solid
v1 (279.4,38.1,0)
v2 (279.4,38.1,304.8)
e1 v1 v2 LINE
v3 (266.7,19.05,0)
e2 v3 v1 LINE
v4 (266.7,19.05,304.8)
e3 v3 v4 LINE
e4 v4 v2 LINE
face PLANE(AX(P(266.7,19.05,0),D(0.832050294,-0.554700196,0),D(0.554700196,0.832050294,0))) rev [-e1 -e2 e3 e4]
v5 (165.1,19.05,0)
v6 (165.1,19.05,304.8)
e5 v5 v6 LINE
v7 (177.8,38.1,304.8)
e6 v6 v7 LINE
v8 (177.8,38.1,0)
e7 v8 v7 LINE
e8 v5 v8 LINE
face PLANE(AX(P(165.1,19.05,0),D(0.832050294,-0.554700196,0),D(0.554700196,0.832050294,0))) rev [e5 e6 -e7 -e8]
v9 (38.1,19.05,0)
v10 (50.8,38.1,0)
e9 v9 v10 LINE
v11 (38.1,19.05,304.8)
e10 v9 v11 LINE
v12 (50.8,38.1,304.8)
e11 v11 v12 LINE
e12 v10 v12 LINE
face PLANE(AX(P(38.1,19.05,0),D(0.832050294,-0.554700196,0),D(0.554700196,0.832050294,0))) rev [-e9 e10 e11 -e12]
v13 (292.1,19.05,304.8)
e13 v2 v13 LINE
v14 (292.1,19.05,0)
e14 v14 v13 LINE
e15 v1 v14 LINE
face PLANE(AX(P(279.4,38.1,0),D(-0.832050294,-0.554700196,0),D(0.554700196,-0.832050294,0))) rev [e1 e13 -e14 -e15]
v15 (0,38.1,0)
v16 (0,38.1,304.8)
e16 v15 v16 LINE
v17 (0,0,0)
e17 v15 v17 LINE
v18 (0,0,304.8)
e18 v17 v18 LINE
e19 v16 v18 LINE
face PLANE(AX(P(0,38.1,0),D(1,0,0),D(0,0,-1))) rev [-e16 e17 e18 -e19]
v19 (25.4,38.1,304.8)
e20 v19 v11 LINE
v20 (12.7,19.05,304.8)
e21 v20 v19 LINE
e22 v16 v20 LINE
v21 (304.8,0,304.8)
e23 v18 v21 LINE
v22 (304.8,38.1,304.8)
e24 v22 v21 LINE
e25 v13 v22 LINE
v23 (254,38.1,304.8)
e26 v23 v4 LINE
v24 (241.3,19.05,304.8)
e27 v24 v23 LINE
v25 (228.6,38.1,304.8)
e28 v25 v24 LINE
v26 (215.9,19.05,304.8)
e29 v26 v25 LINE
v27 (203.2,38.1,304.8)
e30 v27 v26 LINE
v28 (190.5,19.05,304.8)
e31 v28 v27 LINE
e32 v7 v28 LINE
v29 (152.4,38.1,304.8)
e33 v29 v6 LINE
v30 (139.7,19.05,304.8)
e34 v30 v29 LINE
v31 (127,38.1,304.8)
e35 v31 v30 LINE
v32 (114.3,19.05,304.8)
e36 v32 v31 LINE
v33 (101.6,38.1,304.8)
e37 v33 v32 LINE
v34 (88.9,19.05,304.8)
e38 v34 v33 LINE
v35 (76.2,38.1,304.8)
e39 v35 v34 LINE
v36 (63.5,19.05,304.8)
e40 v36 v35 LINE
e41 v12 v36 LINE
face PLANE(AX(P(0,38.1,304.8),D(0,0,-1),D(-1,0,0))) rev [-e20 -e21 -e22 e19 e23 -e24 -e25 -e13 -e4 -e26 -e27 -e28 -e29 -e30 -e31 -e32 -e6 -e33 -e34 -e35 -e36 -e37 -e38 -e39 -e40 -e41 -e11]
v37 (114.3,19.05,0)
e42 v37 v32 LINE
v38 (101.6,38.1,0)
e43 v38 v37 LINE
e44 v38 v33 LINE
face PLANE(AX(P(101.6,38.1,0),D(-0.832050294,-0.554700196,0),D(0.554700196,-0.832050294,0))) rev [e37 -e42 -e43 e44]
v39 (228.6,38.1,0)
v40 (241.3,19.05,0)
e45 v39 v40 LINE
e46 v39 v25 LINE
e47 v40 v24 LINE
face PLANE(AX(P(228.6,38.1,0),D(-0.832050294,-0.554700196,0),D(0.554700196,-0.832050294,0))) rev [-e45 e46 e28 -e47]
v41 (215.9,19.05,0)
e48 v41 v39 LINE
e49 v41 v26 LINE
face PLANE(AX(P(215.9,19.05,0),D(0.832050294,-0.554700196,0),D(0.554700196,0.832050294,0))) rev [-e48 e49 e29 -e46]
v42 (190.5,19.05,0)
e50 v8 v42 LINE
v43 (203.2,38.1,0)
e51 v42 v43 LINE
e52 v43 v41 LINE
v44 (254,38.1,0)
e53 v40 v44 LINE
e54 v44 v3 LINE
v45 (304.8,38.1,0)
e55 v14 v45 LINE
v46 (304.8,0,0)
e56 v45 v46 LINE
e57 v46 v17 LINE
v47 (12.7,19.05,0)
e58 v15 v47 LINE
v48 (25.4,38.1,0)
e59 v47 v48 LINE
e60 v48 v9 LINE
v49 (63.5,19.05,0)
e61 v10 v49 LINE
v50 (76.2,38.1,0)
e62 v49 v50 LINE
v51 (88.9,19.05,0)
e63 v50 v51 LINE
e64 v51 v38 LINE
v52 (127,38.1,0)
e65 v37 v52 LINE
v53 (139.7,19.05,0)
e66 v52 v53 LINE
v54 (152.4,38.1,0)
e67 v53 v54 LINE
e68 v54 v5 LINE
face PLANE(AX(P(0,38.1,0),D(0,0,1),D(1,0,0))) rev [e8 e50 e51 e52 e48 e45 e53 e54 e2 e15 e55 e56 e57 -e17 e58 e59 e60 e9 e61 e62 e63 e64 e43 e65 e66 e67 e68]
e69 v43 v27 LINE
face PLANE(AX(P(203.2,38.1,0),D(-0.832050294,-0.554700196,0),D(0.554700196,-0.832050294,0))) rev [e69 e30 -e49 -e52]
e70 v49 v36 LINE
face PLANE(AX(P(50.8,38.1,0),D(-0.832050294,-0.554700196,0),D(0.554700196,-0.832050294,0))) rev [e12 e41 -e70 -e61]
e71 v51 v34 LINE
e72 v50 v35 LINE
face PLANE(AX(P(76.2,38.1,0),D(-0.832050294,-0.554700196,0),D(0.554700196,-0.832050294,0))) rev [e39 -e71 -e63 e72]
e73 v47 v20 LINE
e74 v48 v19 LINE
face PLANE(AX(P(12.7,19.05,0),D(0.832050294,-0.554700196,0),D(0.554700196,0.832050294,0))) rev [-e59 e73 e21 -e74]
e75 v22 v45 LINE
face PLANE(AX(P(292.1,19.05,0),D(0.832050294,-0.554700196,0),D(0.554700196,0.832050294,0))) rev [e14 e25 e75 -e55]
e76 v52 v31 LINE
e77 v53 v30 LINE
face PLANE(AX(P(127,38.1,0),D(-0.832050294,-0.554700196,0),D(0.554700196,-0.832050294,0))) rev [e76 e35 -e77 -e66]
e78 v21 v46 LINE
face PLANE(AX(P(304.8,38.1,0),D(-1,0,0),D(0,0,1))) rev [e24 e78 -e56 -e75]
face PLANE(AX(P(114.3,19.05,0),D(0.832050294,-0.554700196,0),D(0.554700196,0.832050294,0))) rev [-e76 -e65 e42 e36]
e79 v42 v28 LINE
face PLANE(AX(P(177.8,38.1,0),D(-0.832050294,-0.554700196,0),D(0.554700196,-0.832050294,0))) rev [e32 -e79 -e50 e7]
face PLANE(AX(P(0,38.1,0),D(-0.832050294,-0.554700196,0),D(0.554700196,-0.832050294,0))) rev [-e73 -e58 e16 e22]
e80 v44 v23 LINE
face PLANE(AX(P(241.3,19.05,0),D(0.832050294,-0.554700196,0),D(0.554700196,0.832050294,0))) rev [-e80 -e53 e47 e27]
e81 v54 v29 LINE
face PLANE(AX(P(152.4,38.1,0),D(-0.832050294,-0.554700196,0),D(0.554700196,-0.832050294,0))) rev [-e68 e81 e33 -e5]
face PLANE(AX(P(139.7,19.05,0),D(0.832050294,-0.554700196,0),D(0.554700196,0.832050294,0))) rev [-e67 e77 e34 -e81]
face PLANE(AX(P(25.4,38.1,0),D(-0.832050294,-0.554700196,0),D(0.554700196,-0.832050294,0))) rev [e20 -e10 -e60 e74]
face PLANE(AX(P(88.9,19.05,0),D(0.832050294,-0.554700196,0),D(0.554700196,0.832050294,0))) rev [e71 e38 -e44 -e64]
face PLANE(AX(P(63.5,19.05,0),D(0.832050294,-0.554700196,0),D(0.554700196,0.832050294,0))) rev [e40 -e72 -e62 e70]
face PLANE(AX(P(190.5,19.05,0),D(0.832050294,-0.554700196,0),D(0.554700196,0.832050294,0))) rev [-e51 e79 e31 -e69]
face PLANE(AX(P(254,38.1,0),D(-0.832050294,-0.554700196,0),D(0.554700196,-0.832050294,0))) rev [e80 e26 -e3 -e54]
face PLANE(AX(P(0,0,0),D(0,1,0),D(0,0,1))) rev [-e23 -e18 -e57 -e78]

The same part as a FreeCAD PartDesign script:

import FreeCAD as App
import Part
import Sketcher
Q = App.Units.Quantity


def add_polygon(sketch, points):
    """Adds a closed chain of lines whose ends are joined by coincident constraints."""
    first, n = sketch.GeometryCount, len(points)
    for a, b in zip(points, points[1:] + points[:1]):
        sketch.addGeometry(Part.LineSegment(App.Vector(*a, 0), App.Vector(*b, 0)), False)
    for i in range(n):
        sketch.addConstraint(Sketcher.Constraint("Coincident", first + i, 2, first + (i + 1) % n, 1))

doc = App.newDocument("Part")
body = doc.addObject("PartDesign::Body", "Body")

# Sketch on XZ plane
sketch1 = body.newObject("Sketcher::SketchObject", "Sketch")
sketch1.AttachmentSupport = (doc.getObject("XZ_Plane"), [""])
sketch1.MapMode = "FlatFace"
add_polygon(sketch1, [(0, 0), (0, 305), (305, 305), (305, 0)])  # lines 0-3
sketch1.addConstraint([
    Sketcher.Constraint("Vertical", 0),
    Sketcher.Constraint("Horizontal", 1),
    Sketcher.Constraint("Vertical", 2),
    Sketcher.Constraint("Horizontal", 3),
    Sketcher.Constraint("Coincident", 3, 2, -1, 1),
    Sketcher.Constraint("Equal", 3, 0),
    Sketcher.Constraint("DistanceX", 1, 1, 1, 2, Q("12 in")),
])
pad1 = body.newObject("PartDesign::Pad", "Pad")
pad1.Profile = sketch1
pad1.Length = Q("1.5 in")
pad1.Reversed = True

# Sketch on XY plane
sketch2 = body.newObject("Sketcher::SketchObject", "Sketch001")
sketch2.AttachmentSupport = (doc.getObject("XY_Plane"), [""])
sketch2.MapMode = "FlatFace"
sketch2.AttachmentOffset = App.Placement(App.Vector(0, 0, 12 * 25.4), App.Rotation())
add_polygon(sketch2, [(0, 38), (13, 19), (25, 38)])  # lines 0-2
sketch2.addConstraint([
    Sketcher.Constraint("Horizontal", 2),
    Sketcher.Constraint("PointOnObject", 2, 2, -2),
    Sketcher.Constraint("Equal", 0, 1),
    Sketcher.Constraint("DistanceX", 2, 2, 2, 1, Q("1 in")),
    Sketcher.Constraint("DistanceY", -1, 1, 1, 2, Q("1.5 in")),
    Sketcher.Constraint("DistanceY", -1, 1, 0, 2, Q("0.75 in")),
])
pocket1 = body.newObject("PartDesign::Pocket", "Pocket")
pocket1.Profile = sketch2
pocket1.Type = "ThroughAll"
doc.recompute()

linearpattern = body.newObject("PartDesign::LinearPattern", "LinearPattern")
linearpattern.Originals = [pocket1]
linearpattern.Direction = (doc.getObject("X_Axis"), [""])
linearpattern.Mode = "offset"
linearpattern.Offset = Q("1 in")
linearpattern.Occurrences = 12
body.Tip = linearpattern

doc.recompute()
